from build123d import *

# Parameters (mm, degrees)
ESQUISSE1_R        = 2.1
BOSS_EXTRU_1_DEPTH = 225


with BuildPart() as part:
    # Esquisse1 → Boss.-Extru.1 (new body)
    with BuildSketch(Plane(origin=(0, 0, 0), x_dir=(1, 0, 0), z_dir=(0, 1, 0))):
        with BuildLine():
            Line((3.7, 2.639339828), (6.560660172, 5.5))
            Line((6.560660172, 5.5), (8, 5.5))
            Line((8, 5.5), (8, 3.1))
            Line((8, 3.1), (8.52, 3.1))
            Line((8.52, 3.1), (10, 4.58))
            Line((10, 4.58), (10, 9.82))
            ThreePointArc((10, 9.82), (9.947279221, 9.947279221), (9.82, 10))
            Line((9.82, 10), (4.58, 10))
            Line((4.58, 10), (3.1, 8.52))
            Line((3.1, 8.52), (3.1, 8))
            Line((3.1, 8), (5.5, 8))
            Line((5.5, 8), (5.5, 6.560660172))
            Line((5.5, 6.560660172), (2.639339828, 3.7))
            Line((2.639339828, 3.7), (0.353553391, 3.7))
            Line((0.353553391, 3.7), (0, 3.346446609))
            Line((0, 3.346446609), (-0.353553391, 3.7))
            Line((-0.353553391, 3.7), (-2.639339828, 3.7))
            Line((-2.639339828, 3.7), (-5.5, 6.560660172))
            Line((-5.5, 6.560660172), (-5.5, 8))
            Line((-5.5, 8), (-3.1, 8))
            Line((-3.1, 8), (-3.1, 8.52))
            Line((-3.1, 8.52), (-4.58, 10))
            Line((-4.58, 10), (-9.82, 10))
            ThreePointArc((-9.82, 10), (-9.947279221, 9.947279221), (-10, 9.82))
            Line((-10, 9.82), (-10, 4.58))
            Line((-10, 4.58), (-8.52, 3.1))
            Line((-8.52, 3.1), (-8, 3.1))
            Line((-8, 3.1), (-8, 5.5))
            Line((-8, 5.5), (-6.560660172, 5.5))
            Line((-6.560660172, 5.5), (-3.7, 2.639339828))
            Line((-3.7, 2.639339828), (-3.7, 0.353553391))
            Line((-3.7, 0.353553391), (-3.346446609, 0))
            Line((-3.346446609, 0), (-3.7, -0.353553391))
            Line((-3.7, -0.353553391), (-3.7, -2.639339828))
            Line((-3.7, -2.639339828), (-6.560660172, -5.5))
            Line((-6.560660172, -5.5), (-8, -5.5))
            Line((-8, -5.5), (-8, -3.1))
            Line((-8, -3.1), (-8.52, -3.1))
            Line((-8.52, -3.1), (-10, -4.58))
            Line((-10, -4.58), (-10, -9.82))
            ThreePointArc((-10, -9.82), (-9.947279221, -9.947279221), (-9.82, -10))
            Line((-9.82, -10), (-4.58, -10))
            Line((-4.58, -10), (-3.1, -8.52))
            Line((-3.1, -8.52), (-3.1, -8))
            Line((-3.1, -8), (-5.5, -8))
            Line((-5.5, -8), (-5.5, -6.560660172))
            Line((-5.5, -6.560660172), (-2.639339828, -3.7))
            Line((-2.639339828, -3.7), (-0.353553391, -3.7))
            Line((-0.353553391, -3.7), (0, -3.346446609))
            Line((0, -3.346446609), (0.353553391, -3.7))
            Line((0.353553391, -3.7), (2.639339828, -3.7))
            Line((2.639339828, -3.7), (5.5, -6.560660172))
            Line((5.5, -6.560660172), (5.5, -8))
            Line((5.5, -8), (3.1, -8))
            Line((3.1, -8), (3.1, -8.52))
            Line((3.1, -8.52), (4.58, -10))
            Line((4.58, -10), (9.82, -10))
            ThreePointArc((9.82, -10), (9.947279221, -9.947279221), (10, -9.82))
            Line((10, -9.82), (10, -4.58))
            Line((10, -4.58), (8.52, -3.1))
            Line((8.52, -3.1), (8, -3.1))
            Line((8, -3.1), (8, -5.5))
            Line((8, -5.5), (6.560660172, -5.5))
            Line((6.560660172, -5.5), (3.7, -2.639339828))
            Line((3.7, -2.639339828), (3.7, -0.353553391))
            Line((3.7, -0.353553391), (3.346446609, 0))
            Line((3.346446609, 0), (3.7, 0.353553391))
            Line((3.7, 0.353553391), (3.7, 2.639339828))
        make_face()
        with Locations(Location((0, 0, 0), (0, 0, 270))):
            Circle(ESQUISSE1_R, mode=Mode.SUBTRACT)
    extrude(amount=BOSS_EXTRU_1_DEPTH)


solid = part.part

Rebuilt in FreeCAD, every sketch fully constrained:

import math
import FreeCAD as App
import Part
import Sketcher
Q = App.Units.Quantity

doc = App.newDocument("Part")
body = doc.addObject("PartDesign::Body", "Body")

# Sketch on XZ plane
sketch1 = doc.addObject("Sketcher::SketchObject", "Sketch")
body.addObject(sketch1)
sketch1.AttachmentSupport = (doc.XZ_Plane, [""])
sketch1.MapMode = "FlatFace"
sketch1.addGeometry([
    Part.LineSegment(App.Vector(3.7, -2.64, 0), App.Vector(6.56, -5.5, 0)),  # 0
    Part.LineSegment(App.Vector(6.56, -5.5, 0), App.Vector(8, -5.5, 0)),  # 1
    Part.LineSegment(App.Vector(8, -5.5, 0), App.Vector(8, -3.1, 0)),  # 2
    Part.LineSegment(App.Vector(8, -3.1, 0), App.Vector(8.52, -3.1, 0)),  # 3
    Part.LineSegment(App.Vector(8.52, -3.1, 0), App.Vector(10, -4.58, 0)),  # 4
    Part.LineSegment(App.Vector(10, -4.58, 0), App.Vector(10, -9.82, 0)),  # 5
    Part.ArcOfCircle(Part.Circle(App.Vector(9.82, -9.82, 0), App.Vector(0, 0, 1), 0.18), math.radians(-90), math.radians(0)),  # 6
    Part.LineSegment(App.Vector(9.82, -10, 0), App.Vector(4.58, -10, 0)),  # 7
    Part.LineSegment(App.Vector(4.58, -10, 0), App.Vector(3.1, -8.52, 0)),  # 8
    Part.LineSegment(App.Vector(3.1, -8.52, 0), App.Vector(3.1, -8, 0)),  # 9
    Part.LineSegment(App.Vector(3.1, -8, 0), App.Vector(5.5, -8, 0)),  # 10
    Part.LineSegment(App.Vector(5.5, -8, 0), App.Vector(5.5, -6.56, 0)),  # 11
    Part.LineSegment(App.Vector(5.5, -6.56, 0), App.Vector(2.64, -3.7, 0)),  # 12
    Part.LineSegment(App.Vector(2.64, -3.7, 0), App.Vector(0.35, -3.7, 0)),  # 13
    Part.LineSegment(App.Vector(0.35, -3.7, 0), App.Vector(0, -3.35, 0)),  # 14
    Part.LineSegment(App.Vector(0, -3.35, 0), App.Vector(-0.35, -3.7, 0)),  # 15
    Part.LineSegment(App.Vector(-0.35, -3.7, 0), App.Vector(-2.64, -3.7, 0)),  # 16
    Part.LineSegment(App.Vector(-2.64, -3.7, 0), App.Vector(-5.5, -6.56, 0)),  # 17
    Part.LineSegment(App.Vector(-5.5, -6.56, 0), App.Vector(-5.5, -8, 0)),  # 18
    Part.LineSegment(App.Vector(-5.5, -8, 0), App.Vector(-3.1, -8, 0)),  # 19
    Part.LineSegment(App.Vector(-3.1, -8, 0), App.Vector(-3.1, -8.52, 0)),  # 20
    Part.LineSegment(App.Vector(-3.1, -8.52, 0), App.Vector(-4.58, -10, 0)),  # 21
    Part.LineSegment(App.Vector(-4.58, -10, 0), App.Vector(-9.82, -10, 0)),  # 22
    Part.ArcOfCircle(Part.Circle(App.Vector(-9.82, -9.82, 0), App.Vector(0, 0, 1), 0.18), math.radians(180), math.radians(270)),  # 23
    Part.LineSegment(App.Vector(-10, -9.82, 0), App.Vector(-10, -4.58, 0)),  # 24
    Part.LineSegment(App.Vector(-10, -4.58, 0), App.Vector(-8.52, -3.1, 0)),  # 25
    Part.LineSegment(App.Vector(-8.52, -3.1, 0), App.Vector(-8, -3.1, 0)),  # 26
    Part.LineSegment(App.Vector(-8, -3.1, 0), App.Vector(-8, -5.5, 0)),  # 27
    Part.LineSegment(App.Vector(-8, -5.5, 0), App.Vector(-6.56, -5.5, 0)),  # 28
    Part.LineSegment(App.Vector(-6.56, -5.5, 0), App.Vector(-3.7, -2.64, 0)),  # 29
    Part.LineSegment(App.Vector(-3.7, -2.64, 0), App.Vector(-3.7, -0.35, 0)),  # 30
    Part.LineSegment(App.Vector(-3.7, -0.35, 0), App.Vector(-3.35, 0, 0)),  # 31
    Part.LineSegment(App.Vector(-3.35, 0, 0), App.Vector(-3.7, 0.35, 0)),  # 32
    Part.LineSegment(App.Vector(-3.7, 0.35, 0), App.Vector(-3.7, 2.64, 0)),  # 33
    Part.LineSegment(App.Vector(-3.7, 2.64, 0), App.Vector(-6.56, 5.5, 0)),  # 34
    Part.LineSegment(App.Vector(-6.56, 5.5, 0), App.Vector(-8, 5.5, 0)),  # 35
    Part.LineSegment(App.Vector(-8, 5.5, 0), App.Vector(-8, 3.1, 0)),  # 36
    Part.LineSegment(App.Vector(-8, 3.1, 0), App.Vector(-8.52, 3.1, 0)),  # 37
    Part.LineSegment(App.Vector(-8.52, 3.1, 0), App.Vector(-10, 4.58, 0)),  # 38
    Part.LineSegment(App.Vector(-10, 4.58, 0), App.Vector(-10, 9.82, 0)),  # 39
    Part.ArcOfCircle(Part.Circle(App.Vector(-9.82, 9.82, 0), App.Vector(0, 0, 1), 0.18), math.radians(90), math.radians(180)),  # 40
    Part.LineSegment(App.Vector(-9.82, 10, 0), App.Vector(-4.58, 10, 0)),  # 41
    Part.LineSegment(App.Vector(-4.58, 10, 0), App.Vector(-3.1, 8.52, 0)),  # 42
    Part.LineSegment(App.Vector(-3.1, 8.52, 0), App.Vector(-3.1, 8, 0)),  # 43
    Part.LineSegment(App.Vector(-3.1, 8, 0), App.Vector(-5.5, 8, 0)),  # 44
    Part.LineSegment(App.Vector(-5.5, 8, 0), App.Vector(-5.5, 6.56, 0)),  # 45
    Part.LineSegment(App.Vector(-5.5, 6.56, 0), App.Vector(-2.64, 3.7, 0)),  # 46
    Part.LineSegment(App.Vector(-2.64, 3.7, 0), App.Vector(-0.35, 3.7, 0)),  # 47
    Part.LineSegment(App.Vector(-0.35, 3.7, 0), App.Vector(0, 3.35, 0)),  # 48
    Part.LineSegment(App.Vector(0, 3.35, 0), App.Vector(0.35, 3.7, 0)),  # 49
    Part.LineSegment(App.Vector(0.35, 3.7, 0), App.Vector(2.64, 3.7, 0)),  # 50
    Part.LineSegment(App.Vector(2.64, 3.7, 0), App.Vector(5.5, 6.56, 0)),  # 51
    Part.LineSegment(App.Vector(5.5, 6.56, 0), App.Vector(5.5, 8, 0)),  # 52
    Part.LineSegment(App.Vector(5.5, 8, 0), App.Vector(3.1, 8, 0)),  # 53
    Part.LineSegment(App.Vector(3.1, 8, 0), App.Vector(3.1, 8.52, 0)),  # 54
    Part.LineSegment(App.Vector(3.1, 8.52, 0), App.Vector(4.58, 10, 0)),  # 55
    Part.LineSegment(App.Vector(4.58, 10, 0), App.Vector(9.82, 10, 0)),  # 56
    Part.ArcOfCircle(Part.Circle(App.Vector(9.82, 9.82, 0), App.Vector(0, 0, 1), 0.18), math.radians(0), math.radians(90)),  # 57
    Part.LineSegment(App.Vector(10, 9.82, 0), App.Vector(10, 4.58, 0)),  # 58
    Part.LineSegment(App.Vector(10, 4.58, 0), App.Vector(8.52, 3.1, 0)),  # 59
    Part.LineSegment(App.Vector(8.52, 3.1, 0), App.Vector(8, 3.1, 0)),  # 60
    Part.LineSegment(App.Vector(8, 3.1, 0), App.Vector(8, 5.5, 0)),  # 61
    Part.LineSegment(App.Vector(8, 5.5, 0), App.Vector(6.56, 5.5, 0)),  # 62
    Part.LineSegment(App.Vector(6.56, 5.5, 0), App.Vector(3.7, 2.64, 0)),  # 63
    Part.LineSegment(App.Vector(3.7, 2.64, 0), App.Vector(3.7, 0.35, 0)),  # 64
    Part.LineSegment(App.Vector(3.7, 0.35, 0), App.Vector(3.35, 0, 0)),  # 65
    Part.LineSegment(App.Vector(3.35, 0, 0), App.Vector(3.7, -0.35, 0)),  # 66
    Part.LineSegment(App.Vector(3.7, -0.35, 0), App.Vector(3.7, -2.64, 0)),  # 67
    Part.Circle(App.Vector(0, 0, 0), App.Vector(0, 0, 1), 2.1),  # 68
], False)
sketch1.addConstraint([
    Sketcher.Constraint("Coincident", 0, 2, 1, 1),
    Sketcher.Constraint("Coincident", 1, 2, 2, 1),
    Sketcher.Constraint("Coincident", 2, 2, 3, 1),
    Sketcher.Constraint("Coincident", 3, 2, 4, 1),
    Sketcher.Constraint("Coincident", 4, 2, 5, 1),
    Sketcher.Constraint("Tangent", 5, 2, 6, 2),
    Sketcher.Constraint("Tangent", 6, 1, 7, 1),
    Sketcher.Constraint("Coincident", 7, 2, 8, 1),
    Sketcher.Constraint("Coincident", 8, 2, 9, 1),
    Sketcher.Constraint("Coincident", 9, 2, 10, 1),
    Sketcher.Constraint("Coincident", 10, 2, 11, 1),
    Sketcher.Constraint("Coincident", 11, 2, 12, 1),
    Sketcher.Constraint("Coincident", 12, 2, 13, 1),
    Sketcher.Constraint("Coincident", 13, 2, 14, 1),
    Sketcher.Constraint("Coincident", 14, 2, 15, 1),
    Sketcher.Constraint("Coincident", 15, 2, 16, 1),
    Sketcher.Constraint("Coincident", 16, 2, 17, 1),
    Sketcher.Constraint("Coincident", 17, 2, 18, 1),
    Sketcher.Constraint("Coincident", 18, 2, 19, 1),
    Sketcher.Constraint("Coincident", 19, 2, 20, 1),
    Sketcher.Constraint("Coincident", 20, 2, 21, 1),
    Sketcher.Constraint("Coincident", 21, 2, 22, 1),
    Sketcher.Constraint("Tangent", 22, 2, 23, 2),
    Sketcher.Constraint("Tangent", 23, 1, 24, 1),
    Sketcher.Constraint("Coincident", 24, 2, 25, 1),
    Sketcher.Constraint("Coincident", 25, 2, 26, 1),
    Sketcher.Constraint("Coincident", 26, 2, 27, 1),
    Sketcher.Constraint("Coincident", 27, 2, 28, 1),
    Sketcher.Constraint("Coincident", 28, 2, 29, 1),
    Sketcher.Constraint("Coincident", 29, 2, 30, 1),
    Sketcher.Constraint("Coincident", 30, 2, 31, 1),
    Sketcher.Constraint("Coincident", 31, 2, 32, 1),
    Sketcher.Constraint("Coincident", 32, 2, 33, 1),
    Sketcher.Constraint("Coincident", 33, 2, 34, 1),
    Sketcher.Constraint("Coincident", 34, 2, 35, 1),
    Sketcher.Constraint("Coincident", 35, 2, 36, 1),
    Sketcher.Constraint("Coincident", 36, 2, 37, 1),
    Sketcher.Constraint("Coincident", 37, 2, 38, 1),
    Sketcher.Constraint("Coincident", 38, 2, 39, 1),
    Sketcher.Constraint("Tangent", 39, 2, 40, 2),
    Sketcher.Constraint("Tangent", 40, 1, 41, 1),
    Sketcher.Constraint("Coincident", 41, 2, 42, 1),
    Sketcher.Constraint("Coincident", 42, 2, 43, 1),
    Sketcher.Constraint("Coincident", 43, 2, 44, 1),
    Sketcher.Constraint("Coincident", 44, 2, 45, 1),
    Sketcher.Constraint("Coincident", 45, 2, 46, 1),
    Sketcher.Constraint("Coincident", 46, 2, 47, 1),
    Sketcher.Constraint("Coincident", 47, 2, 48, 1),
    Sketcher.Constraint("Coincident", 48, 2, 49, 1),
    Sketcher.Constraint("Coincident", 49, 2, 50, 1),
    Sketcher.Constraint("Coincident", 50, 2, 51, 1),
    Sketcher.Constraint("Coincident", 51, 2, 52, 1),
    Sketcher.Constraint("Coincident", 52, 2, 53, 1),
    Sketcher.Constraint("Coincident", 53, 2, 54, 1),
    Sketcher.Constraint("Coincident", 54, 2, 55, 1),
    Sketcher.Constraint("Coincident", 55, 2, 56, 1),
    Sketcher.Constraint("Tangent", 56, 2, 57, 2),
    Sketcher.Constraint("Tangent", 57, 1, 58, 1),
    Sketcher.Constraint("Coincident", 58, 2, 59, 1),
    Sketcher.Constraint("Coincident", 59, 2, 60, 1),
    Sketcher.Constraint("Coincident", 60, 2, 61, 1),
    Sketcher.Constraint("Coincident", 61, 2, 62, 1),
    Sketcher.Constraint("Coincident", 62, 2, 63, 1),
    Sketcher.Constraint("Coincident", 63, 2, 64, 1),
    Sketcher.Constraint("Coincident", 64, 2, 65, 1),
    Sketcher.Constraint("Coincident", 65, 2, 66, 1),
    Sketcher.Constraint("Coincident", 66, 2, 67, 1),
    Sketcher.Constraint("Coincident", 67, 2, 0, 1),
    Sketcher.Constraint("Horizontal", 1),
    Sketcher.Constraint("Vertical", 2),
    Sketcher.Constraint("Horizontal", 3),
    Sketcher.Constraint("Vertical", 5),
    Sketcher.Constraint("Horizontal", 7),
    Sketcher.Constraint("Vertical", 9),
    Sketcher.Constraint("Horizontal", 10),
    Sketcher.Constraint("Vertical", 11),
    Sketcher.Constraint("Horizontal", 13),
    Sketcher.Constraint("Horizontal", 16),
    Sketcher.Constraint("Vertical", 18),
    Sketcher.Constraint("Horizontal", 19),
    Sketcher.Constraint("Vertical", 20),
    Sketcher.Constraint("Horizontal", 22),
    Sketcher.Constraint("Vertical", 24),
    Sketcher.Constraint("Horizontal", 26),
    Sketcher.Constraint("Vertical", 27),
    Sketcher.Constraint("Horizontal", 28),
    Sketcher.Constraint("Vertical", 30),
    Sketcher.Constraint("Vertical", 33),
    Sketcher.Constraint("Horizontal", 35),
    Sketcher.Constraint("Vertical", 36),
    Sketcher.Constraint("Horizontal", 37),
    Sketcher.Constraint("Vertical", 39),
    Sketcher.Constraint("Horizontal", 41),
    Sketcher.Constraint("Vertical", 43),
    Sketcher.Constraint("Horizontal", 44),
    Sketcher.Constraint("Vertical", 45),
    Sketcher.Constraint("Horizontal", 47),
    Sketcher.Constraint("Horizontal", 50),
    Sketcher.Constraint("Vertical", 52),
    Sketcher.Constraint("Horizontal", 53),
    Sketcher.Constraint("Vertical", 54),
    Sketcher.Constraint("Horizontal", 56),
    Sketcher.Constraint("Vertical", 58),
    Sketcher.Constraint("Horizontal", 60),
    Sketcher.Constraint("Vertical", 61),
    Sketcher.Constraint("Horizontal", 62),
    Sketcher.Constraint("Vertical", 64),
    Sketcher.Constraint("Vertical", 67),
    Sketcher.Constraint("Coincident", 68, 3, -1, 1),
    Sketcher.Constraint("Equal", 6, 23),
    Sketcher.Constraint("Equal", 23, 40),
    Sketcher.Constraint("Equal", 40, 57),
    Sketcher.Constraint("Symmetric", 6, 3, 40, 3, -1, 1),
    Sketcher.Constraint("Symmetric", 23, 3, 57, 3, -1, 1),
    Sketcher.Constraint("Symmetric", 0, 2, 34, 2, -1, 1),
    Sketcher.Constraint("Symmetric", 2, 2, 36, 2, -1, 1),
    Sketcher.Constraint("Symmetric", 8, 2, 42, 2, -1, 1),
    Sketcher.Constraint("Symmetric", 10, 2, 44, 2, -1, 1),
    Sketcher.Constraint("Symmetric", 12, 2, 46, 2, -1, 1),
    Sketcher.Constraint("Symmetric", 14, 2, 48, 2, -1, 1),
    Sketcher.Constraint("Symmetric", 15, 2, 49, 2, -1, 1),
    Sketcher.Constraint("Symmetric", 17, 2, 51, 2, -1, 1),
    Sketcher.Constraint("Symmetric", 19, 2, 53, 2, -1, 1),
    Sketcher.Constraint("Symmetric", 25, 2, 59, 2, -1, 1),
    Sketcher.Constraint("Symmetric", 27, 2, 61, 2, -1, 1),
    Sketcher.Constraint("Symmetric", 29, 2, 63, 2, -1, 1),
    Sketcher.Constraint("Symmetric", 31, 2, 65, 2, -1, 1),
    Sketcher.Constraint("Symmetric", 32, 2, 66, 2, -1, 1),
    Sketcher.Constraint("Symmetric", 6, 3, 23, 3, -2),
    Sketcher.Constraint("Symmetric", 13, 2, 15, 2, -2),
    Sketcher.Constraint("Symmetric", 11, 2, 17, 2, -2),
    Sketcher.Constraint("Symmetric", 9, 2, 19, 2, -2),
    Sketcher.Constraint("Symmetric", 3, 2, 25, 2, -2),
    Sketcher.Constraint("Symmetric", 1, 2, 27, 2, -2),
    Sketcher.Constraint("Symmetric", 33, 2, 63, 2, -2),
    Sketcher.Constraint("PointOnObject", 14, 2, -2),
    Sketcher.Constraint("PointOnObject", 31, 2, -1),
    Sketcher.Constraint("Parallel", 0, 4),
    Sketcher.Constraint("Parallel", 4, 8),
    Sketcher.Constraint("Parallel", 8, 12),
    Sketcher.Constraint("Parallel", 12, 14),
    Sketcher.Constraint("Perpendicular", 14, 15),
    Sketcher.Constraint("Parallel", 15, 17),
    Sketcher.Constraint("Parallel", 17, 21),
    Sketcher.Constraint("Parallel", 21, 25),
    Sketcher.Constraint("Parallel", 25, 29),
    Sketcher.Constraint("Parallel", 29, 31),
    Sketcher.Constraint("Perpendicular", 31, 32),
    Sketcher.Constraint("Parallel", 32, 34),
    Sketcher.Constraint("Parallel", 34, 38),
    Sketcher.Constraint("Parallel", 38, 42),
    Sketcher.Constraint("Parallel", 42, 46),
    Sketcher.Constraint("Parallel", 46, 48),
    Sketcher.Constraint("Parallel", 49, 51),
    Sketcher.Constraint("Parallel", 51, 55),
    Sketcher.Constraint("Parallel", 55, 59),
    Sketcher.Constraint("Parallel", 59, 63),
    Sketcher.Constraint("Parallel", 63, 65),
    Sketcher.Constraint("Horizontal", 8, 2, 20, 2),
    Sketcher.Constraint("Horizontal", 42, 2, 54, 2),
    Sketcher.Constraint("Horizontal", 38, 2, 58, 2),
    Sketcher.Constraint("Equal", 53, 2),
    Sketcher.Constraint("Equal", 56, 5),
    Sketcher.Constraint("Equal", 60, 9),
    Sketcher.Constraint("Equal", 62, 11),
    Sketcher.Constraint("Equal", 50, 30),
    Sketcher.Constraint("Equal", 4, 8),
    Sketcher.Constraint("Equal", 0, 12),
    Sketcher.Constraint("Equal", 15, 31),
    Sketcher.Constraint("Diameter", 68, Q("4.2 mm")),
    Sketcher.Constraint("Radius", 6, Q("0.18 mm")),
    Sketcher.Constraint("DistanceX", 10, 1, 10, 2, Q("2.4 mm")),
    Sketcher.Constraint("DistanceX", -1, 1, 1, 2, Q("8 mm")),
    Sketcher.Constraint("DistanceX", -1, 1, 4, 2, Q("10 mm")),
    Sketcher.Constraint("Distance", 14, Q("0.5 mm")),
    Sketcher.Constraint("DistanceX", 3, 1, 3, 2, Q("0.52 mm")),
    Sketcher.Constraint("DistanceX", 7, 2, 7, 1, Q("5.24 mm")),
    Sketcher.Constraint("DistanceY", 12, 2, -1, 1, Q("3.7 mm")),
    Sketcher.Constraint("DistanceX", 1, 1, 1, 2, Q("1.43934 mm")),
])
pad1 = doc.addObject("PartDesign::Pad", "Pad")
body.addObject(pad1)
pad1.Profile = sketch1
pad1.Length = 225
pad1.Reversed = True

doc.recompute()
